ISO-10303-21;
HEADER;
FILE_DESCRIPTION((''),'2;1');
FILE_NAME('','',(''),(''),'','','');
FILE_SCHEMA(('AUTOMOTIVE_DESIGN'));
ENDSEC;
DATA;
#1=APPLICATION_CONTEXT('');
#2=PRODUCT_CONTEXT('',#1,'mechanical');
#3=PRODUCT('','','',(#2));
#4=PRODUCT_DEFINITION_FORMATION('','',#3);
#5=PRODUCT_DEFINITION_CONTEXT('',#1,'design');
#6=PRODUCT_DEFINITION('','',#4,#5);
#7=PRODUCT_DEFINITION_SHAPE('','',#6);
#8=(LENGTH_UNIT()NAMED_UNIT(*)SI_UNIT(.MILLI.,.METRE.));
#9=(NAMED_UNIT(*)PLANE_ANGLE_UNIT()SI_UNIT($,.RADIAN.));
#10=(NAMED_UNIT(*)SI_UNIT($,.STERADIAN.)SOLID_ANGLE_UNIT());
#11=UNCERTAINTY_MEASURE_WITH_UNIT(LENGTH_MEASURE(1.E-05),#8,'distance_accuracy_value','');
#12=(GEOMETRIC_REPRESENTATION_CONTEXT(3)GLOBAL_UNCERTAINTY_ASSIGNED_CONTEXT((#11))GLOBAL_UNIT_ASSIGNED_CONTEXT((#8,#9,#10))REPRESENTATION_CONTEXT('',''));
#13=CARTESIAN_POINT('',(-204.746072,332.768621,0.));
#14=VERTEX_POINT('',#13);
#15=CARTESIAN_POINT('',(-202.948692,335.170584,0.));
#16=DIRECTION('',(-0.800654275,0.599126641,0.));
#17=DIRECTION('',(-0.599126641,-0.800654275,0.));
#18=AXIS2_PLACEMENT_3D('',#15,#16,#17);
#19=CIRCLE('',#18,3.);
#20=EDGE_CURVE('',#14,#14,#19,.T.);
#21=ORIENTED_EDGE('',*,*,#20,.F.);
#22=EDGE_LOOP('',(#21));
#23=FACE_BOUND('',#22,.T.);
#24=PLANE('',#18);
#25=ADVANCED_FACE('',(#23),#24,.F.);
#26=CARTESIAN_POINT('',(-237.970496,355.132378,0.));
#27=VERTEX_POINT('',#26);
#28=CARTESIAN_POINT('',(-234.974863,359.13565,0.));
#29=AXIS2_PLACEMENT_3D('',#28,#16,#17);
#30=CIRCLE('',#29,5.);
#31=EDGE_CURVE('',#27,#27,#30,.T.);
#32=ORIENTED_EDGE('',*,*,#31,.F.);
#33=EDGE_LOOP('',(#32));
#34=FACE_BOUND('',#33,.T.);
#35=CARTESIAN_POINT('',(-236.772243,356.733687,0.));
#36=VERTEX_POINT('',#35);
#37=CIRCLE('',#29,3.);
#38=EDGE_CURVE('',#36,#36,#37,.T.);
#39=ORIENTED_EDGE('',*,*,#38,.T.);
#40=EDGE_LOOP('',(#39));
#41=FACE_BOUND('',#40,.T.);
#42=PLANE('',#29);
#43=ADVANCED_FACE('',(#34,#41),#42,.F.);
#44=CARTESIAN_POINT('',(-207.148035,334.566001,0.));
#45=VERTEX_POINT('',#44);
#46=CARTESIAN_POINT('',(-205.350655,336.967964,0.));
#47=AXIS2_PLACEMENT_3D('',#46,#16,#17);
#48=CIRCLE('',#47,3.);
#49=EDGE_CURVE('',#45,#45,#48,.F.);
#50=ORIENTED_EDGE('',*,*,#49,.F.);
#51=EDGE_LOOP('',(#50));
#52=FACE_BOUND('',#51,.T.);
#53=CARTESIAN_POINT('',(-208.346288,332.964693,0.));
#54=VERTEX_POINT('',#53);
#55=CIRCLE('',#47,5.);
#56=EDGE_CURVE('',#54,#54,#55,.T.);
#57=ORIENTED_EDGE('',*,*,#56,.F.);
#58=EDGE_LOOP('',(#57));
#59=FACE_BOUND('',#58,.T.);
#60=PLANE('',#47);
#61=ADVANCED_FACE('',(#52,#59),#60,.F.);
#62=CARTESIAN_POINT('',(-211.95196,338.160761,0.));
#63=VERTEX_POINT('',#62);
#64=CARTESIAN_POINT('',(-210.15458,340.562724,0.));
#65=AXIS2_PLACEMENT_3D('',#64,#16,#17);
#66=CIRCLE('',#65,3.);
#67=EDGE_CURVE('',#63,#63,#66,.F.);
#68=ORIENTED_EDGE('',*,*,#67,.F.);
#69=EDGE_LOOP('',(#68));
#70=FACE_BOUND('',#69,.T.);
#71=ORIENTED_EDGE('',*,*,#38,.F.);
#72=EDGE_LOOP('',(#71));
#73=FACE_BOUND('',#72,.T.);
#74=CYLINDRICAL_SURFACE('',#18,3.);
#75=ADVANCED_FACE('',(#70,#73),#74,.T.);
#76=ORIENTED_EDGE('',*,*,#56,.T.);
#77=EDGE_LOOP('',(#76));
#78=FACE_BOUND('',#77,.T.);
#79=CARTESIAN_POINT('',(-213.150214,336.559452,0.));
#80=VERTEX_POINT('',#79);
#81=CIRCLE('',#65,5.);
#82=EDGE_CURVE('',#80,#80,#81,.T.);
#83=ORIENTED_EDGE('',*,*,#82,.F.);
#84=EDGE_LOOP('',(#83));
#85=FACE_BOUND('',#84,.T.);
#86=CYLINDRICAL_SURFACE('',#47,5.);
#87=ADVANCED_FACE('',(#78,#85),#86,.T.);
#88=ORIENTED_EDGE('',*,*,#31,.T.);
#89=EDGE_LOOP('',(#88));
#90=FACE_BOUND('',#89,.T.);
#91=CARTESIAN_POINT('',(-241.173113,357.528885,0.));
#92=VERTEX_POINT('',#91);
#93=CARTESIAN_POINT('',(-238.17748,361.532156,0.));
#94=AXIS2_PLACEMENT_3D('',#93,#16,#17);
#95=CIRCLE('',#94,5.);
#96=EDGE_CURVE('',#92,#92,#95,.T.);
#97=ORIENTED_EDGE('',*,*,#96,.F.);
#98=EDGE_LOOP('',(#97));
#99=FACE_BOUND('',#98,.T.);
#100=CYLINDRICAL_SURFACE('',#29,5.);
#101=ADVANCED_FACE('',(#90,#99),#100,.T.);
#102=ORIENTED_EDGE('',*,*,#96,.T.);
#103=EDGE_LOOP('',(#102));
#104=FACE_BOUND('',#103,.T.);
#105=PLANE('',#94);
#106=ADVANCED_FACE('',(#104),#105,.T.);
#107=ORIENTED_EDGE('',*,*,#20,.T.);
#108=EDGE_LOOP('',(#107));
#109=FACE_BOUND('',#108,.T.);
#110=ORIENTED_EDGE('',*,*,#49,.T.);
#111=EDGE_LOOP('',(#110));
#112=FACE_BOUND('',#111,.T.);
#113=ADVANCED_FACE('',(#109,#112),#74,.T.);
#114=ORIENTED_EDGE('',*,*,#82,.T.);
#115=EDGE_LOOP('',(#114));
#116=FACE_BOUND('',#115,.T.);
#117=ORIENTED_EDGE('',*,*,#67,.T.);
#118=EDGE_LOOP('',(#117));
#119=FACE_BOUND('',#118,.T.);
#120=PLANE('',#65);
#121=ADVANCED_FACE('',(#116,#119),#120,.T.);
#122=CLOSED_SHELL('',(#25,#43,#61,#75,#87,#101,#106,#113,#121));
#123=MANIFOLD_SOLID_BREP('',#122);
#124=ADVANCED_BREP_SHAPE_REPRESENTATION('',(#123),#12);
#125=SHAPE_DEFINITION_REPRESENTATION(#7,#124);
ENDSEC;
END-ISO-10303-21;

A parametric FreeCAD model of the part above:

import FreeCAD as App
import Part
import Sketcher

doc = App.newDocument("Part")
body = doc.addObject("PartDesign::Body", "Body")

# Sketch on an angled plane
sketch1 = body.newObject("Sketcher::SketchObject", "Sketch")
sketch1.Placement = App.Placement(App.Vector(-234.974863, 359.13565, 0), App.Rotation(App.Vector(-0.599126641, -0.800654275, 0), App.Vector(0, 0, 1), App.Vector(-0.800654275, 0.599126641, 0), "ZXY"))
sketch1.addGeometry(Part.Circle(App.Vector(0, 0, 0), App.Vector(0, 0, 1), 5), False)
sketch1.addConstraint([
    Sketcher.Constraint("Coincident", 0, 3, -1, 1),
    Sketcher.Constraint("Diameter", 0, 10.0),
])

# Sketch on an angled plane
sketch2 = body.newObject("Sketcher::SketchObject", "Sketch001")
sketch2.Placement = App.Placement(App.Vector(87.930098, 117.507058, 0), App.Rotation(App.Vector(-0.800654275, 0.599126641, 0), App.Vector(0, 0, 1), App.Vector(0.599126641, 0.800654275, 0), "ZXY"))
sketch2.addGeometry(Part.LineSegment(App.Vector(403.301364, 0, 0), App.Vector(407.301364, 0, 0)), False)
sketch2.addConstraint([
    Sketcher.Constraint("Horizontal", 0),
    Sketcher.Constraint("PointOnObject", 0, 1, -1),
    Sketcher.Constraint("DistanceX", 0, 1, 0, 2, 4.0),
    Sketcher.Constraint("DistanceX", -1, 1, 0, 1, 403.301364),
])
doc.recompute()

additivepipe = body.newObject("PartDesign::AdditivePipe", "AdditivePipe")
additivepipe.Profile = sketch1
additivepipe.Spine = (sketch2, ["Edge1"])

# Sketch on an angled plane
sketch3 = body.newObject("Sketcher::SketchObject", "Sketch002")
sketch3.Placement = App.Placement(App.Vector(-202.948692, 335.170584, 0), App.Rotation(App.Vector(-0.599126641, -0.800654275, 0), App.Vector(0, 0, 1), App.Vector(-0.800654275, 0.599126641, 0), "ZXY"))
sketch3.addGeometry(Part.Circle(App.Vector(0, 0, 0), App.Vector(0, 0, 1), 3), False)
sketch3.addConstraint([
    Sketcher.Constraint("Coincident", 0, 3, -1, 1),
    Sketcher.Constraint("Diameter", 0, 6.0),
])

# Sketch on an angled plane
sketch4 = body.newObject("Sketcher::SketchObject", "Sketch003")
sketch4.Placement = App.Placement(App.Vector(87.930098, 117.507058, 0), App.Rotation(App.Vector(-0.800654275, 0.599126641, 0), App.Vector(0, 0, 1), App.Vector(0.599126641, 0.800654275, 0), "ZXY"))
sketch4.addGeometry(Part.LineSegment(App.Vector(363.301364, 0, 0), App.Vector(403.301364, 0, 0)), False)
sketch4.addConstraint([
    Sketcher.Constraint("Horizontal", 0),
    Sketcher.Constraint("PointOnObject", 0, 1, -1),
    Sketcher.Constraint("DistanceX", 0, 1, 0, 2, 40.0),
    Sketcher.Constraint("DistanceX", -1, 1, 0, 1, 363.301364),
])
doc.recompute()

additivepipe2 = body.newObject("PartDesign::AdditivePipe", "AdditivePipe001")
additivepipe2.Profile = sketch3
additivepipe2.Spine = (sketch4, ["Edge1"])

# Sketch on an angled plane
sketch5 = body.newObject("Sketcher::SketchObject", "Sketch004")
sketch5.Placement = App.Placement(App.Vector(-205.350655, 336.967964, 0), App.Rotation(App.Vector(-0.599126641, -0.800654275, 0), App.Vector(0, 0, 1), App.Vector(-0.800654275, 0.599126641, 0), "ZXY"))
sketch5.addGeometry(Part.Circle(App.Vector(0, 0, 0), App.Vector(0, 0, 1), 5), False)
sketch5.addConstraint([
    Sketcher.Constraint("Coincident", 0, 3, -1, 1),
    Sketcher.Constraint("Diameter", 0, 10.0),
])

# Sketch on an angled plane
sketch6 = body.newObject("Sketcher::SketchObject", "Sketch005")
sketch6.Placement = App.Placement(App.Vector(87.930098, 117.507058, 0), App.Rotation(App.Vector(-0.800654275, 0.599126641, 0), App.Vector(0, 0, 1), App.Vector(0.599126641, 0.800654275, 0), "ZXY"))
sketch6.addGeometry(Part.LineSegment(App.Vector(366.301364, 0, 0), App.Vector(372.301364, 0, 0)), False)
sketch6.addConstraint([
    Sketcher.Constraint("Horizontal", 0),
    Sketcher.Constraint("PointOnObject", 0, 1, -1),
    Sketcher.Constraint("DistanceX", 0, 1, 0, 2, 6.0),
    Sketcher.Constraint("DistanceX", -1, 1, 0, 1, 366.301364),
])
doc.recompute()

additivepipe3 = body.newObject("PartDesign::AdditivePipe", "AdditivePipe002")
additivepipe3.Profile = sketch5
additivepipe3.Spine = (sketch6, ["Edge1"])

doc.recompute()
